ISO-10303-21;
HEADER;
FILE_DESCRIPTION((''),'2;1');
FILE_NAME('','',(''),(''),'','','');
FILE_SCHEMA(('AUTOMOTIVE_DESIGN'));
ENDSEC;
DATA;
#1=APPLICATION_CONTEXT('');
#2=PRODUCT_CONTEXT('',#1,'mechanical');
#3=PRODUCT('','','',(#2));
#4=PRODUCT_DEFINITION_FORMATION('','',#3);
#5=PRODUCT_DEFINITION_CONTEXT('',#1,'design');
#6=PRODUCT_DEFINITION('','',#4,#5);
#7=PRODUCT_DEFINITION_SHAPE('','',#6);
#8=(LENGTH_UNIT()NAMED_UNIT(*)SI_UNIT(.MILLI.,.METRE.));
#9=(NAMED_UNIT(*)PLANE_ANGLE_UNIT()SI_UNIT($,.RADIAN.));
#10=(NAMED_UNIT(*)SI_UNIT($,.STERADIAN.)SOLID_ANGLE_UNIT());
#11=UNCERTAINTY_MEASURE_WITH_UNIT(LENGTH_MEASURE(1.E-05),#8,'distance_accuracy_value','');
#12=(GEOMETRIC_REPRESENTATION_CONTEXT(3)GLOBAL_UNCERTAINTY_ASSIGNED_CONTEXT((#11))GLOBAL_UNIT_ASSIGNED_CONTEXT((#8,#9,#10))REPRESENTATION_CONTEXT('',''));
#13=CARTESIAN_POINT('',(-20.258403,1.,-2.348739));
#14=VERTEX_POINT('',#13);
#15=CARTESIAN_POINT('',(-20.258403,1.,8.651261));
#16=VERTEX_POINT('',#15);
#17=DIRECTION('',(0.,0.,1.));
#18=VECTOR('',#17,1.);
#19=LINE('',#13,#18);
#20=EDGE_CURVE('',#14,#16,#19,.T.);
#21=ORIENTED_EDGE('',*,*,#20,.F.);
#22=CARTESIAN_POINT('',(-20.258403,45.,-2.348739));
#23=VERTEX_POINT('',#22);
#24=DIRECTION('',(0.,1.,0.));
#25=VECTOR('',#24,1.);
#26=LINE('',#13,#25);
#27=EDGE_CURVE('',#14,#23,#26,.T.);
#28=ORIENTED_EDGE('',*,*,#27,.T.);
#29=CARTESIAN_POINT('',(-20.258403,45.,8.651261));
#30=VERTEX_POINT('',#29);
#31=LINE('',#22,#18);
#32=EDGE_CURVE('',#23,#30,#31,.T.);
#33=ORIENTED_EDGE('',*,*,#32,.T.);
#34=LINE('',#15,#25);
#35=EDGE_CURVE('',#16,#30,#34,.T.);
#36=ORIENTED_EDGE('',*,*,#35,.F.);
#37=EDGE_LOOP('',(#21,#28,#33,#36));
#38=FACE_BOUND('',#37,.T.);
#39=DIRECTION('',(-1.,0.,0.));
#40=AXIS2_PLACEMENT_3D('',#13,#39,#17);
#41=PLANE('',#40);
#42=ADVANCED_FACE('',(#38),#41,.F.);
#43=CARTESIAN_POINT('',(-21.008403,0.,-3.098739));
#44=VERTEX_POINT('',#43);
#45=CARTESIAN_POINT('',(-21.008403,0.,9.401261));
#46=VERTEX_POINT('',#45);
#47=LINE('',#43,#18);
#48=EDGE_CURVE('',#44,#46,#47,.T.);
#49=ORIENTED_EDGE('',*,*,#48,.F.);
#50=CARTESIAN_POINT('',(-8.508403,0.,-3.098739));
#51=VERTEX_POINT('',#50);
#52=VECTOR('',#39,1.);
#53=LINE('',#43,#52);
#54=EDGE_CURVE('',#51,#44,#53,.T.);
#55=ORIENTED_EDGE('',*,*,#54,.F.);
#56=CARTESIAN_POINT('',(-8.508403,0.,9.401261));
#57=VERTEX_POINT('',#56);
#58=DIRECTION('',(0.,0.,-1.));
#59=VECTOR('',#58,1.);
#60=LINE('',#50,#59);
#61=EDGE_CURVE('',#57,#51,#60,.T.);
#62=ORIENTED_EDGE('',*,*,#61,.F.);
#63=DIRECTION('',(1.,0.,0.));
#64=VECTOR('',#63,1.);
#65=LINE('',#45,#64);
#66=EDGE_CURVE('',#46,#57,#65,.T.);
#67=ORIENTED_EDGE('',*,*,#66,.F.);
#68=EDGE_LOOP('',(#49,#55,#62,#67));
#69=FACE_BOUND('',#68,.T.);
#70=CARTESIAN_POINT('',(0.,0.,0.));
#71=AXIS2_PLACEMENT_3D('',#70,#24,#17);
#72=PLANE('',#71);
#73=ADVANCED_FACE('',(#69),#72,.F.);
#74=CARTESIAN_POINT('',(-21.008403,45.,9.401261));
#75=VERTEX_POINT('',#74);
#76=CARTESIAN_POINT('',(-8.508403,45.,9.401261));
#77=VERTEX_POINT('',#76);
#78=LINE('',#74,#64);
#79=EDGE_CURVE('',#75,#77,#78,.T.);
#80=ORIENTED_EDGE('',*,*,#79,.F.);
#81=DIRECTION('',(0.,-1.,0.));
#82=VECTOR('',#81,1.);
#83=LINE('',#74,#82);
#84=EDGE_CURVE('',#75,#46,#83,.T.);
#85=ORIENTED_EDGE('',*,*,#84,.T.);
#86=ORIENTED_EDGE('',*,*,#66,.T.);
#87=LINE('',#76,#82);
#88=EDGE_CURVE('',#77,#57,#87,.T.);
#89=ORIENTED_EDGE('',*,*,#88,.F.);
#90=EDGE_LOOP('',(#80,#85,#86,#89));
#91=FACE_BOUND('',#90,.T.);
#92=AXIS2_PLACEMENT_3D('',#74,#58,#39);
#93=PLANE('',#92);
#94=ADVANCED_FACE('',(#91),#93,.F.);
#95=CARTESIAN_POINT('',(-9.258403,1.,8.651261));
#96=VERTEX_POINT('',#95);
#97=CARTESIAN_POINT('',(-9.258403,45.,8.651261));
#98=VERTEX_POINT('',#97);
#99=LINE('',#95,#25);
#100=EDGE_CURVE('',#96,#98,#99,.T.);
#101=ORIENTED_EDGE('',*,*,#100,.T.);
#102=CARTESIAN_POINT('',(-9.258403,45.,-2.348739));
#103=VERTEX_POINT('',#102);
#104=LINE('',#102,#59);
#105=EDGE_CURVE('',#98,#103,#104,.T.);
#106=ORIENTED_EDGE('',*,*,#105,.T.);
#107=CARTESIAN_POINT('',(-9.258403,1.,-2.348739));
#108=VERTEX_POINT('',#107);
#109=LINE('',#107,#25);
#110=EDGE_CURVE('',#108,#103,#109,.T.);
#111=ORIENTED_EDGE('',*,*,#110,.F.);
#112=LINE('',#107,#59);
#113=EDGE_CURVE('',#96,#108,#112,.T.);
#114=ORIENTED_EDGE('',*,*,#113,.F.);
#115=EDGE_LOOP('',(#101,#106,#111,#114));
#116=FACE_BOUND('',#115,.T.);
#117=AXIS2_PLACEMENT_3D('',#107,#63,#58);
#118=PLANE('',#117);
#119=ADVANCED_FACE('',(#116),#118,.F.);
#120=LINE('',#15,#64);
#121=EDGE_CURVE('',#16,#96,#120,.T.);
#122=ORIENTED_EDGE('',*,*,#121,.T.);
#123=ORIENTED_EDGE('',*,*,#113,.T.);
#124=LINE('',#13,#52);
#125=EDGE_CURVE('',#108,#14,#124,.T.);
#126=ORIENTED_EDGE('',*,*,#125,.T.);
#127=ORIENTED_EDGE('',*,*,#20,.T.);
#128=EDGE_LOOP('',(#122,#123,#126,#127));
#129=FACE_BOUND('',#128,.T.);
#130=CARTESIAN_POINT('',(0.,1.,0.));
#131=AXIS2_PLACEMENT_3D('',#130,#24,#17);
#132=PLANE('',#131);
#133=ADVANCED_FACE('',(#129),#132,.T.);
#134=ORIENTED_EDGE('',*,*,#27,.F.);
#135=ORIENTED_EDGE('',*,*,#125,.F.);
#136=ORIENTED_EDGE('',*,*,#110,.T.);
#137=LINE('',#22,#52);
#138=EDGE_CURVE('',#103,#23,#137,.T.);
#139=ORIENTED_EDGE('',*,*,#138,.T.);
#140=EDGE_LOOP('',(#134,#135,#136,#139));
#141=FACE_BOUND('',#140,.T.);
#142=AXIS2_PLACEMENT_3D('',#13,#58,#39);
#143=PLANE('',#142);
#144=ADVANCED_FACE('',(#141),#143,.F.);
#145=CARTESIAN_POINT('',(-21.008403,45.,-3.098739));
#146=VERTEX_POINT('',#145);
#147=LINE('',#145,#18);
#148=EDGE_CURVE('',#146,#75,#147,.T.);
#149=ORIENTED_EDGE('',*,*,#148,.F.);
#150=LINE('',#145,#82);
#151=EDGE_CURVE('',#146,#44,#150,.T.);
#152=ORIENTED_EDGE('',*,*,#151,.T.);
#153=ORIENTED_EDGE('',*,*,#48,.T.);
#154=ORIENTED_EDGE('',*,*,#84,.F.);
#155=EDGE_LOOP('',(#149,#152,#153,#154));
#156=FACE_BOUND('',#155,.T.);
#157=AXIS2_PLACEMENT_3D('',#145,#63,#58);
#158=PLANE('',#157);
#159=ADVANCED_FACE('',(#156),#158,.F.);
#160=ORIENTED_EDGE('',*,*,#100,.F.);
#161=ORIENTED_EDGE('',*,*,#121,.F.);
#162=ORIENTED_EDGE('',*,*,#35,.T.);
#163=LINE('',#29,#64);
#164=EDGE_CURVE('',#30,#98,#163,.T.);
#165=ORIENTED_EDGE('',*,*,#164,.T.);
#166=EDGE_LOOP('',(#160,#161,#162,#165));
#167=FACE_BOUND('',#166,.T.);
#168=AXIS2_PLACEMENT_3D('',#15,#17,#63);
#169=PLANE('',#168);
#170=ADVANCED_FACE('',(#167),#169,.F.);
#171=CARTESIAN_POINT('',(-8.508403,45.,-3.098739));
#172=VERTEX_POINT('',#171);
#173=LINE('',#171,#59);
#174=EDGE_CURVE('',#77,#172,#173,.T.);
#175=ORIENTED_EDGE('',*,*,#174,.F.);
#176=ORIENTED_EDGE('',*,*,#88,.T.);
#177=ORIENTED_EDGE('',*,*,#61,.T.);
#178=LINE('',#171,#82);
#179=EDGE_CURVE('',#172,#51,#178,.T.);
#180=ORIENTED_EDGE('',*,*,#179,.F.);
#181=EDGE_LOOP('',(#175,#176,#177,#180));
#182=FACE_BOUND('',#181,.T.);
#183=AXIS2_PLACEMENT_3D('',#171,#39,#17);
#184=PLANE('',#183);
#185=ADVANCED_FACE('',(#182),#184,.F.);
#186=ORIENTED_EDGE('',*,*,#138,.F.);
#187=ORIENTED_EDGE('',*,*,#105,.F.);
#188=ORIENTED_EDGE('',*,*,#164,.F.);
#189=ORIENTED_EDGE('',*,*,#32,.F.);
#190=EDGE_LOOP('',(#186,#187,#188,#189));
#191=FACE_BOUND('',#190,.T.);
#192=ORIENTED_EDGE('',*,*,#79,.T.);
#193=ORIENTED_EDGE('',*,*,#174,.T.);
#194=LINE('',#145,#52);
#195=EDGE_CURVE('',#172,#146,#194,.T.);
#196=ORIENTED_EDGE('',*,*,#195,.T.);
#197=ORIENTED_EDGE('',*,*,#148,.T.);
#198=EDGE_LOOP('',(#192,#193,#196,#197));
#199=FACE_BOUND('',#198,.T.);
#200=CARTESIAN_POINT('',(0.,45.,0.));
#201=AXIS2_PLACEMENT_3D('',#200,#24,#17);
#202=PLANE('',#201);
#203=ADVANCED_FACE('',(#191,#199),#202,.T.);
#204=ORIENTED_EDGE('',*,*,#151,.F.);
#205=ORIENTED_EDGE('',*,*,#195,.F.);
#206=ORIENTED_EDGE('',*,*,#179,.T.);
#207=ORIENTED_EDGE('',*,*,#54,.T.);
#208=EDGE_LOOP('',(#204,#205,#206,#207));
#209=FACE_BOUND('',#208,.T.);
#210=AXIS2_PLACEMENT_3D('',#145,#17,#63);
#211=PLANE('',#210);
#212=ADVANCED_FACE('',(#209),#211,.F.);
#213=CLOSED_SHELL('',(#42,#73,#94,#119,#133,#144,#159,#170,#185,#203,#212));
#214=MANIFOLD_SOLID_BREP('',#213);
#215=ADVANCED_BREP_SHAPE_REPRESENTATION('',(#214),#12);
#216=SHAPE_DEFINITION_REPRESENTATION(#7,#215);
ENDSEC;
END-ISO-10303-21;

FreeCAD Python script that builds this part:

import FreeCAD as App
import Part
import Sketcher
from FreeCAD import Vector
Q = App.Units.Quantity


def add_polygon(sketch, points):
    """Adds a closed chain of lines whose ends are joined by coincident constraints."""
    first, n = sketch.GeometryCount, len(points)
    for a, b in zip(points, points[1:] + points[:1]):
        sketch.addGeometry(Part.LineSegment(App.Vector(*a, 0), App.Vector(*b, 0)), False)
    for i in range(n):
        sketch.addConstraint(Sketcher.Constraint("Coincident", first + i, 2, first + (i + 1) % n, 1))

doc = App.newDocument("Part")
body = doc.addObject("PartDesign::Body", "Body")

# Sketch on XZ plane
sketch1 = body.newObject("Sketcher::SketchObject", "Sketch")
sketch1.AttachmentSupport = (doc.getObject("XZ_Plane"), [""])
sketch1.MapMode = "FlatFace"
add_polygon(sketch1, [(-21, -3), (-21, 9), (-9, 9), (-9, -3)])  # lines 0-3
sketch1.addConstraint(Sketcher.Constraint("Vertical", 0))
sketch1.addConstraint(Sketcher.Constraint("Horizontal", 1))
sketch1.addConstraint(Sketcher.Constraint("Vertical", 2))
sketch1.addConstraint(Sketcher.Constraint("Horizontal", 3))
sketch1.addConstraint(Sketcher.Constraint("Equal", 3, 0))
sketch1.addConstraint(Sketcher.Constraint("DistanceX", 1, 1, 1, 2, Q("12.5 mm")))
sketch1.addConstraint(Sketcher.Constraint("DistanceY", -1, 1, 0, 2, Q("9.401261 mm")))
sketch1.addConstraint(Sketcher.Constraint("DistanceX", 0, 2, -1, 1, Q("21.008403 mm")))
pad1 = body.newObject("PartDesign::Pad", "Pad")
pad1.Profile = sketch1
pad1.Length = 45
pad1.Reversed = True

# Sketch on XZ plane
sketch2 = body.newObject("Sketcher::SketchObject", "Sketch001")
sketch2.AttachmentSupport = (doc.getObject("XZ_Plane"), [""])
sketch2.MapMode = "FlatFace"
sketch2.AttachmentOffset = App.Placement(Vector(0, 0, -45), App.Rotation())
add_polygon(sketch2, [(-20, -2), (-20, 9), (-9, 9), (-9, -2)])  # lines 0-3
sketch2.addConstraint(Sketcher.Constraint("Vertical", 0))
sketch2.addConstraint(Sketcher.Constraint("Horizontal", 1))
sketch2.addConstraint(Sketcher.Constraint("Vertical", 2))
sketch2.addConstraint(Sketcher.Constraint("Horizontal", 3))
sketch2.addConstraint(Sketcher.Constraint("Equal", 3, 0))
sketch2.addConstraint(Sketcher.Constraint("DistanceX", 1, 1, 1, 2, Q("11 mm")))
sketch2.addConstraint(Sketcher.Constraint("DistanceY", -1, 1, 0, 2, Q("8.651261 mm")))
sketch2.addConstraint(Sketcher.Constraint("DistanceX", 0, 2, -1, 1, Q("20.258403 mm")))
pocket1 = body.newObject("PartDesign::Pocket", "Pocket")
pocket1.Profile = sketch2
pocket1.Length = 44
pocket1.Reversed = True

doc.recompute()
